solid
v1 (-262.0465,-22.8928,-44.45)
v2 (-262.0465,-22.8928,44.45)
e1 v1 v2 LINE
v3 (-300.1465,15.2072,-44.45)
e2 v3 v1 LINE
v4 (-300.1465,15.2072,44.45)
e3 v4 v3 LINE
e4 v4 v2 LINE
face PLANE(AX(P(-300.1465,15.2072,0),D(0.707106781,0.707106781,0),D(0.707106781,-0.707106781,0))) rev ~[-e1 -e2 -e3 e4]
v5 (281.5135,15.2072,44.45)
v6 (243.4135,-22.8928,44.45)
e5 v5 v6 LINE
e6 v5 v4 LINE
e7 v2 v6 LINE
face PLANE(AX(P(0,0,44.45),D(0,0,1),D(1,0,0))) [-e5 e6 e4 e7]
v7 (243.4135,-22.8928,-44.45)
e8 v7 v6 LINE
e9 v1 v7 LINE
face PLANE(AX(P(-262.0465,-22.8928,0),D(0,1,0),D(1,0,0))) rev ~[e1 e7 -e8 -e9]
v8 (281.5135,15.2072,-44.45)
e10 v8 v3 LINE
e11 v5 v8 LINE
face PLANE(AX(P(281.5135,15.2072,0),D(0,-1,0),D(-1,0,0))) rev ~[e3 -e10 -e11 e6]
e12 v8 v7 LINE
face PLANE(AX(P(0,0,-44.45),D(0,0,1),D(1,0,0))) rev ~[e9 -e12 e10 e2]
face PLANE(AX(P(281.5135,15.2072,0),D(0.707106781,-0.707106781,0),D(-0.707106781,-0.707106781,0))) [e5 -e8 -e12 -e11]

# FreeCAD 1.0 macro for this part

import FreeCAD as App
import Part
import Sketcher
Q = App.Units.Quantity

doc = App.newDocument("Part")
body = doc.addObject("PartDesign::Body", "Body")

# Sketch on XY plane
sketch1 = body.newObject("Sketcher::SketchObject", "Sketch")
sketch1.AttachmentSupport = (doc.getObject("XY_Plane"), [""])
sketch1.MapMode = "FlatFace"
sketch1.addGeometry([
    Part.LineSegment(App.Vector(-300, 15, 0), App.Vector(-262, -23, 0)),
    Part.LineSegment(App.Vector(-262, -23, 0), App.Vector(243, -23, 0)),
    Part.LineSegment(App.Vector(243, -23, 0), App.Vector(282, 15, 0)),
    Part.LineSegment(App.Vector(282, 15, 0), App.Vector(-300, 15, 0)),
], False)
sketch1.addConstraint([
    Sketcher.Constraint("Coincident", 0, 2, 1, 1),
    Sketcher.Constraint("Coincident", 1, 2, 2, 1),
    Sketcher.Constraint("Coincident", 2, 2, 3, 1),
    Sketcher.Constraint("Coincident", 3, 2, 0, 1),
    Sketcher.Constraint("Horizontal", 1),
    Sketcher.Constraint("Horizontal", 3),
    Sketcher.Constraint("Perpendicular", 0, 2),
    Sketcher.Constraint("Equal", 0, 2),
    Sketcher.Constraint("DistanceX", 3, 2, 3, 1, Q("22.9 in")),
    Sketcher.Constraint("DistanceX", 1, 2, 2, 2, Q("1.5 in")),
    Sketcher.Constraint("DistanceX", 0, 2, -1, 1, Q("10.3168 in")),
    Sketcher.Constraint("DistanceY", 0, 2, -1, 1, Q("0.9013 in")),
])
pad1 = body.newObject("PartDesign::Pad", "Pad")
pad1.Profile = sketch1
pad1.Length = Q("3.5 in")
pad1.Midplane = True

doc.recompute()
